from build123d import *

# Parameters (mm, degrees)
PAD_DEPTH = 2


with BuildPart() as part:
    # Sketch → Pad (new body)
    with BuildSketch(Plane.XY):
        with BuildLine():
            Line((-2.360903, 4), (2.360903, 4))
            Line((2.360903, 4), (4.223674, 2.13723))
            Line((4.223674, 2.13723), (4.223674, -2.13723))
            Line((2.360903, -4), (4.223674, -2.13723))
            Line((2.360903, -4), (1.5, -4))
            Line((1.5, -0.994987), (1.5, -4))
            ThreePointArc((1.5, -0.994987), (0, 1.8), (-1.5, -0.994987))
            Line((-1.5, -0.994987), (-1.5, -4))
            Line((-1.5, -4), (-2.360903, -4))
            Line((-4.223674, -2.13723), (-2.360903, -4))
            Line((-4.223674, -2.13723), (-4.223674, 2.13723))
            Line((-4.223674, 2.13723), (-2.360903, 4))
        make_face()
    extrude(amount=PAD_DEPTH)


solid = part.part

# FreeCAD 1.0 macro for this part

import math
import FreeCAD as App
import Part
import Sketcher

V = App.Vector

doc = App.newDocument("Part")
body = doc.addObject("PartDesign::Body", "Body")

# Sketch on XY plane
sketch1 = body.newObject("Sketcher::SketchObject", "Sketch")
sketch1.AttachmentSupport = (doc.getObject("XY_Plane"), [""])
sketch1.MapMode = "FlatFace"
sketch1.addGeometry([
    Part.LineSegment(V(2.4, 4, 0), V(-2.4, 4, 0)),  # 0
    Part.LineSegment(V(-2.4, 4, 0), V(-4.2, 2.1, 0)),  # 1
    Part.LineSegment(V(-4.2, 2.1, 0), V(-4.2, -2.1, 0)),  # 2
    Part.LineSegment(V(-4.2, -2.1, 0), V(-2.4, -4, 0)),  # 3
    Part.LineSegment(V(-2.4, -4, 0), V(-1.5, -4, 0)),  # 4
    Part.LineSegment(V(-1.5, -4, 0), V(-1.5, -1, 0)),  # 5
    Part.ArcOfCircle(Part.Circle(V(0, 0, 0), V(0, 0, 1), 1.8), math.radians(-34), math.radians(214)),  # 6
    Part.LineSegment(V(1.5, -1, 0), V(1.5, -4, 0)),  # 7
    Part.LineSegment(V(1.5, -4, 0), V(2.4, -4, 0)),  # 8
    Part.LineSegment(V(2.4, -4, 0), V(4.2, -2.1, 0)),  # 9
    Part.LineSegment(V(4.2, -2.1, 0), V(4.2, 2.1, 0)),  # 10
    Part.LineSegment(V(4.2, 2.1, 0), V(2.4, 4, 0)),  # 11
], False)
sketch1.addConstraint([
    Sketcher.Constraint("Coincident", 0, 2, 1, 1),
    Sketcher.Constraint("Coincident", 1, 2, 2, 1),
    Sketcher.Constraint("Coincident", 2, 2, 3, 1),
    Sketcher.Constraint("Coincident", 3, 2, 4, 1),
    Sketcher.Constraint("Coincident", 4, 2, 5, 1),
    Sketcher.Constraint("Coincident", 5, 2, 6, 2),
    Sketcher.Constraint("Coincident", 6, 1, 7, 1),
    Sketcher.Constraint("Coincident", 7, 2, 8, 1),
    Sketcher.Constraint("Coincident", 8, 2, 9, 1),
    Sketcher.Constraint("Coincident", 9, 2, 10, 1),
    Sketcher.Constraint("Coincident", 10, 2, 11, 1),
    Sketcher.Constraint("Coincident", 11, 2, 0, 1),
    Sketcher.Constraint("Horizontal", 0),
    Sketcher.Constraint("Vertical", 2),
    Sketcher.Constraint("Horizontal", 4),
    Sketcher.Constraint("Vertical", 5),
    Sketcher.Constraint("Vertical", 7),
    Sketcher.Constraint("Horizontal", 8),
    Sketcher.Constraint("Vertical", 10),
    Sketcher.Constraint("Coincident", 6, 3, -1, 1),
    Sketcher.Constraint("Symmetric", 0, 2, 8, 2, -1, 1),
    Sketcher.Constraint("Symmetric", 1, 2, 9, 2, -1, 1),
    Sketcher.Constraint("Symmetric", 3, 2, 11, 2, -1, 1),
    Sketcher.Constraint("Perpendicular", 1, 3),
    Sketcher.Constraint("Perpendicular", 9, 11),
    Sketcher.Constraint("Horizontal", 5, 2, 6, 1),
    Sketcher.Constraint("Horizontal", 2, 2, 9, 2),
    Sketcher.Constraint("Vertical", 0, 2, 3, 2),
    Sketcher.Constraint("Radius", 6, 1.8),
    Sketcher.Constraint("DistanceY", -1, 1, 0, 2, 4.0),
    Sketcher.Constraint("DistanceX", 5, 2, 6, 1, 3.0),
    Sketcher.Constraint("DistanceY", 2, 2, 2, 1, 4.27446),
    Sketcher.Constraint("DistanceX", 0, 2, 0, 1, 4.721806),
])
pad1 = body.newObject("PartDesign::Pad", "Pad")
pad1.Profile = sketch1
pad1.Length = 2

doc.recompute()
